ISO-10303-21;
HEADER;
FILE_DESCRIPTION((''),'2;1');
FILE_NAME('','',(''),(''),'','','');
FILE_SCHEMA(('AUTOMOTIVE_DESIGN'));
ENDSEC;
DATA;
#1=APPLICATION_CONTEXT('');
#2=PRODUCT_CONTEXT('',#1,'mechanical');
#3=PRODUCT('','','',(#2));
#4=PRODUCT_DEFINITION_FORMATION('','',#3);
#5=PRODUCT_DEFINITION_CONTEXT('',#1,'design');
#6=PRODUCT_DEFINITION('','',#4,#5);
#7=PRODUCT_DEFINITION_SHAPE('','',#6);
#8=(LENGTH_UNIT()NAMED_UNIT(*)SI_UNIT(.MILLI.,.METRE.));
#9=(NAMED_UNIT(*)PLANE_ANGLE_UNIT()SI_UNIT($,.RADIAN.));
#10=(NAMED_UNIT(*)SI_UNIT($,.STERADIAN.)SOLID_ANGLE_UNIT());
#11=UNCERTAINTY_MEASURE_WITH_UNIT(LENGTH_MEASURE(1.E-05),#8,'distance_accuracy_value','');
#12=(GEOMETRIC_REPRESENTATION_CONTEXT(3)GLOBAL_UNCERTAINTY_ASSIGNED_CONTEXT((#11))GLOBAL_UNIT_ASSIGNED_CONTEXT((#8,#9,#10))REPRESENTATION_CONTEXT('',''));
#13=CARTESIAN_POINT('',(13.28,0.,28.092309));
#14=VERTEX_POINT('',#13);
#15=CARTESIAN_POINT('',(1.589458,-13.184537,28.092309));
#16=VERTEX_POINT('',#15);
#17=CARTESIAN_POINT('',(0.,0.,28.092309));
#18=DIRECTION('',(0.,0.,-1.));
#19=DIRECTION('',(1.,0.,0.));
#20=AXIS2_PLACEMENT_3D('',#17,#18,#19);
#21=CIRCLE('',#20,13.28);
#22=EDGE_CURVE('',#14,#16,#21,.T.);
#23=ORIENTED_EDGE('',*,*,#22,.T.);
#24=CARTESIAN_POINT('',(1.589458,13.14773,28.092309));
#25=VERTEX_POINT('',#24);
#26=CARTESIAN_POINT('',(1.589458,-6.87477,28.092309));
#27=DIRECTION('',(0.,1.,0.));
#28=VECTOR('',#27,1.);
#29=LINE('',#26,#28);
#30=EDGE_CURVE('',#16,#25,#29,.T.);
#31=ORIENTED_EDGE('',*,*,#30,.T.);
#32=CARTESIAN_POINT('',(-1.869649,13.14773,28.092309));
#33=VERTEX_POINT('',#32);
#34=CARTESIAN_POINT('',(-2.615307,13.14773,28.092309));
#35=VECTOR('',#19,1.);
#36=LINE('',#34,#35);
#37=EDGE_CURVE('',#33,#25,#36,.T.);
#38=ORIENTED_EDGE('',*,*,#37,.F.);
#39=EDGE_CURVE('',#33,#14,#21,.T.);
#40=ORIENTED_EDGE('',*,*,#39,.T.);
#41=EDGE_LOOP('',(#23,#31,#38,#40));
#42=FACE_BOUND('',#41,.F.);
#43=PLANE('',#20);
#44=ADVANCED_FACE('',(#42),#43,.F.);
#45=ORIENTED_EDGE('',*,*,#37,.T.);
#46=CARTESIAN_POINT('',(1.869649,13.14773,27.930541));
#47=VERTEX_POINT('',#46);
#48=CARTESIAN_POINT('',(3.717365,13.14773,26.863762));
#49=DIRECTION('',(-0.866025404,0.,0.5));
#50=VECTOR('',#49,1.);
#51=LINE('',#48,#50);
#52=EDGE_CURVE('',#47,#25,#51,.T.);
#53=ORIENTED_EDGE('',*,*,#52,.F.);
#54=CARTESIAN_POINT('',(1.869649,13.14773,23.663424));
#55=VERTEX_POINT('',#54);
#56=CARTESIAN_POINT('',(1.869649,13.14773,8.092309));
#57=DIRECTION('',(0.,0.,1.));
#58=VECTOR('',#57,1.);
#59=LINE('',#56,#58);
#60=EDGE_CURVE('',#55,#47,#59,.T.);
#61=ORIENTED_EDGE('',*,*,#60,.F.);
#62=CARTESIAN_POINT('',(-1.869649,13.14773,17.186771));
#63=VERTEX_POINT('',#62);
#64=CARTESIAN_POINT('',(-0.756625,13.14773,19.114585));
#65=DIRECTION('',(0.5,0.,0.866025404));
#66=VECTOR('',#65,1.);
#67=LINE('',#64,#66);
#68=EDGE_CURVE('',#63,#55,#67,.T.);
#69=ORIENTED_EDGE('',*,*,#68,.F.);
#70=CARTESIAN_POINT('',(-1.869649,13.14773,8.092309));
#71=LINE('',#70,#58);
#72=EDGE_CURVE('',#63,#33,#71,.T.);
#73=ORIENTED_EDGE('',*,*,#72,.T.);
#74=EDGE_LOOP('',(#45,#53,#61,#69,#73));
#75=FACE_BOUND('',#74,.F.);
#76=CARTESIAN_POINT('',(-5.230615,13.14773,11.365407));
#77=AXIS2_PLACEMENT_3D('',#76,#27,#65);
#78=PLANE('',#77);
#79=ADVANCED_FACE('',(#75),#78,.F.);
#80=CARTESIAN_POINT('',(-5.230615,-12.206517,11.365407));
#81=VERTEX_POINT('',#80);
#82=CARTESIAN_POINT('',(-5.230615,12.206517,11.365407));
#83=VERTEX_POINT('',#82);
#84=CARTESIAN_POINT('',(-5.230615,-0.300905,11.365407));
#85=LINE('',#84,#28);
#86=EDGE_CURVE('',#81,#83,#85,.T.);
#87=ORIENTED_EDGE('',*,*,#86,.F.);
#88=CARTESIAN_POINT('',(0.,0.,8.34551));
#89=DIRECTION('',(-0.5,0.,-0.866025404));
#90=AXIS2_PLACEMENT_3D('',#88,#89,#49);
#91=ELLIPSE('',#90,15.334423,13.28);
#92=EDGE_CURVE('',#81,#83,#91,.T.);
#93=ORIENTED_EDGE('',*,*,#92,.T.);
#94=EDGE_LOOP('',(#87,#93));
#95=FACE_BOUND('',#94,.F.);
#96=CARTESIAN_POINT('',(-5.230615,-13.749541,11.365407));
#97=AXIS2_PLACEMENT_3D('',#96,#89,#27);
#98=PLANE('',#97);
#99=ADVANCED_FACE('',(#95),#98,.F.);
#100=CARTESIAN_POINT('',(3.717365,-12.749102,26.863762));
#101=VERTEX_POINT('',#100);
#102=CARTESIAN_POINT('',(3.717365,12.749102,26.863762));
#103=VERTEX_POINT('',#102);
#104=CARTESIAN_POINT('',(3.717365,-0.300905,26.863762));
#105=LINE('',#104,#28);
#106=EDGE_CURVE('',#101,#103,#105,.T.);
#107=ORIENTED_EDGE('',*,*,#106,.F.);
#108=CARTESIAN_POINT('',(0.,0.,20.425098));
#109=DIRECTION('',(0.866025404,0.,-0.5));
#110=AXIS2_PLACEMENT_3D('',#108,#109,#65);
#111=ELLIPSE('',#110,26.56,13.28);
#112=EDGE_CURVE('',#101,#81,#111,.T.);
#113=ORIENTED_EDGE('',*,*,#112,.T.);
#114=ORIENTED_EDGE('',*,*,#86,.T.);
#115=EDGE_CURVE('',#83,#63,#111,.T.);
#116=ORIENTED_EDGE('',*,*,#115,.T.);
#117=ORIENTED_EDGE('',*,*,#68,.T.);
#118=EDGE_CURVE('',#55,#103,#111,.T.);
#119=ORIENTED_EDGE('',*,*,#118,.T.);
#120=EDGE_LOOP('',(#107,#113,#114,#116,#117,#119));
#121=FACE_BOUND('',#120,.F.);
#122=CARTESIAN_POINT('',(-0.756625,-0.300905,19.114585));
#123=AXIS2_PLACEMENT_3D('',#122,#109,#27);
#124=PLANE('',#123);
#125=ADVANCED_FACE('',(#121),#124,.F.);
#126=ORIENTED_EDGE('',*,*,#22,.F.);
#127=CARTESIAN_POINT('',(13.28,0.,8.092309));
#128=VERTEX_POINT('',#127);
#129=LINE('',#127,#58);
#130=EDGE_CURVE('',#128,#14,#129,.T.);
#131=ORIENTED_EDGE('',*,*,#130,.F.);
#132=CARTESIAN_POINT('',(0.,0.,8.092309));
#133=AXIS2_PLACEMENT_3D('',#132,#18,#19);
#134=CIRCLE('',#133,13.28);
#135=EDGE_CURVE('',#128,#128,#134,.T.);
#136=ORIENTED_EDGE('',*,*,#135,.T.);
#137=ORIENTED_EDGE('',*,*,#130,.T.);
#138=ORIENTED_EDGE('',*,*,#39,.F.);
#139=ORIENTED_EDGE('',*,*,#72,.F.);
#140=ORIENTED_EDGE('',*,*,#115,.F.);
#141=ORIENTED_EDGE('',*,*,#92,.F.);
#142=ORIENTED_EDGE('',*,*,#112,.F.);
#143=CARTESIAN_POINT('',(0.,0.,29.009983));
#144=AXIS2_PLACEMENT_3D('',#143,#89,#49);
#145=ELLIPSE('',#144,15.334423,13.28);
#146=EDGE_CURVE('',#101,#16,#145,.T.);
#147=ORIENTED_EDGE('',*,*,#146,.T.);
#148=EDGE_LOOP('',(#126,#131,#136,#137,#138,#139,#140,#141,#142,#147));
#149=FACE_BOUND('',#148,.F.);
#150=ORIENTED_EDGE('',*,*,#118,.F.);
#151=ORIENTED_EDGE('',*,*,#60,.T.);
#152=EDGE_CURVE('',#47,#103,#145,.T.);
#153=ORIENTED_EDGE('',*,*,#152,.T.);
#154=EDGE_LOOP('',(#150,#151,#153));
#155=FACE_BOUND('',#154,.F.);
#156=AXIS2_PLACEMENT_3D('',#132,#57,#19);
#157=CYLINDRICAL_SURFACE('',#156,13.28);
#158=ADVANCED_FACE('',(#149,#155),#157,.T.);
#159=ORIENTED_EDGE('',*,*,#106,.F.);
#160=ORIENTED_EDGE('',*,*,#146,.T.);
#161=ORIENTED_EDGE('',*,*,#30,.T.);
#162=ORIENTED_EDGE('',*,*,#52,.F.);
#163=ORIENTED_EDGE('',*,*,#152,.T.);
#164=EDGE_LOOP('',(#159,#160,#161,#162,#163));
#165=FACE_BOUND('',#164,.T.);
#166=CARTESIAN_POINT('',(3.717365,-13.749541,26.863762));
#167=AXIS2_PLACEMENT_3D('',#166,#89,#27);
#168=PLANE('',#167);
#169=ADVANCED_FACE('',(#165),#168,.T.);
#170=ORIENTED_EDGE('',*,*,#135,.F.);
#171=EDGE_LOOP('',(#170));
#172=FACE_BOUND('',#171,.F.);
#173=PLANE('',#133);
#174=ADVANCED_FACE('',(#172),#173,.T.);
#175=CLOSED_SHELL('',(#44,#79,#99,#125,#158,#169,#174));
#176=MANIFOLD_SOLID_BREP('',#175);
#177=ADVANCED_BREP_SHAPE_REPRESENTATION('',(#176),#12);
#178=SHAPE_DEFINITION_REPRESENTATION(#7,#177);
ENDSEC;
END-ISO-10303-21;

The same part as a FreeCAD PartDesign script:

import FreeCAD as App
import Part
import Sketcher
from FreeCAD import Vector
Q = App.Units.Quantity

doc = App.newDocument("Part")
params = doc.addObject("Spreadsheet::Sheet", "Params")
for row, (alias, value) in enumerate([
    ("sketch1_height", "20 mm"),
    ("sketch1_width", "13.28 mm"),
    ("revolution_angle", "360 deg"),
    ("pocket1_length", "25 mm"),
], start=1):
    params.set(f"A{row}", alias)
    params.set(f"B{row}", "=" + value)
    params.setAlias(f"B{row}", alias)

body = doc.addObject("PartDesign::Body", "Body")

# Sketch on XZ plane
sketch1 = body.newObject("Sketcher::SketchObject", "Sketch")
sketch1.AttachmentSupport = (doc.getObject("XZ_Plane"), [""])
sketch1.MapMode = "FlatFace"
sketch1.addGeometry(Part.LineSegment(Vector(13, 28, 0), Vector(0, 28, 0)), False)
sketch1.addGeometry(Part.LineSegment(Vector(0, 28, 0), Vector(0, 8, 0)), False)
sketch1.addGeometry(Part.LineSegment(Vector(0, 8, 0), Vector(13, 8, 0)), False)
sketch1.addGeometry(Part.LineSegment(Vector(13, 8, 0), Vector(13, 28, 0)), False)
sketch1.addConstraint(Sketcher.Constraint("Coincident", 0, 2, 1, 1))
sketch1.addConstraint(Sketcher.Constraint("Coincident", 1, 2, 2, 1))
sketch1.addConstraint(Sketcher.Constraint("Coincident", 2, 2, 3, 1))
sketch1.addConstraint(Sketcher.Constraint("Coincident", 3, 2, 0, 1))
sketch1.addConstraint(Sketcher.Constraint("Horizontal", 0))
sketch1.addConstraint(Sketcher.Constraint("Vertical", 1))
sketch1.addConstraint(Sketcher.Constraint("Horizontal", 2))
sketch1.addConstraint(Sketcher.Constraint("Vertical", 3))
sketch1.addConstraint(Sketcher.Constraint("PointOnObject", 0, 2, -2))
sketch1.addConstraint(Sketcher.Constraint("DistanceY", 1, 2, 1, 1, Q("20 mm")))
sketch1.addConstraint(Sketcher.Constraint("DistanceX", 0, 2, 0, 1, Q("13.28 mm")))
sketch1.addConstraint(Sketcher.Constraint("DistanceY", -1, 1, 0, 2, Q("28.092309 mm")))
sketch1.setExpression("Constraints[9]", "Params.sketch1_height")
sketch1.setExpression("Constraints[10]", "Params.sketch1_width")
revolution = body.newObject("PartDesign::Revolution", "Revolution")
revolution.Profile = sketch1
revolution.ReferenceAxis = (sketch1, ["V_Axis"])
revolution.setExpression("Angle", "Params.revolution_angle")

# Sketch on an angled plane
sketch2 = body.newObject("Sketcher::SketchObject", "Sketch001")
sketch2.Placement = App.Placement(Vector(-8.844327, 0, 5.106274), App.Rotation(Vector(0, 1, 0), Vector(0.5, 0, 0.866025404), Vector(0.866025404, 0, -0.5), "ZXY"))
sketch2.addGeometry(Part.LineSegment(Vector(-14, 25, 0), Vector(-14, 7, 0)), False)
sketch2.addGeometry(Part.LineSegment(Vector(-14, 7, 0), Vector(13, 7, 0)), False)
sketch2.addGeometry(Part.LineSegment(Vector(13, 7, 0), Vector(13, 25, 0)), False)
sketch2.addGeometry(Part.LineSegment(Vector(13, 25, 0), Vector(-14, 25, 0)), False)
sketch2.addConstraint(Sketcher.Constraint("Coincident", 0, 2, 1, 1))
sketch2.addConstraint(Sketcher.Constraint("Coincident", 1, 2, 2, 1))
sketch2.addConstraint(Sketcher.Constraint("Coincident", 2, 2, 3, 1))
sketch2.addConstraint(Sketcher.Constraint("Coincident", 3, 2, 0, 1))
sketch2.addConstraint(Sketcher.Constraint("Vertical", 0))
sketch2.addConstraint(Sketcher.Constraint("Horizontal", 1))
sketch2.addConstraint(Sketcher.Constraint("Vertical", 2))
sketch2.addConstraint(Sketcher.Constraint("Horizontal", 3))
sketch2.addConstraint(Sketcher.Constraint("DistanceX", 1, 1, 1, 2, Q("26.897271 mm")))
sketch2.addConstraint(Sketcher.Constraint("DistanceY", 0, 2, 0, 1, Q("17.895959 mm")))
sketch2.addConstraint(Sketcher.Constraint("DistanceX", 0, 2, -1, 1, Q("13.749541 mm")))
sketch2.addConstraint(Sketcher.Constraint("DistanceY", -1, 1, 0, 2, Q("7.227424 mm")))
pocket1 = body.newObject("PartDesign::Pocket", "Pocket")
pocket1.Profile = sketch2
pocket1.setExpression("Length", "Params.pocket1_length")

doc.recompute()
